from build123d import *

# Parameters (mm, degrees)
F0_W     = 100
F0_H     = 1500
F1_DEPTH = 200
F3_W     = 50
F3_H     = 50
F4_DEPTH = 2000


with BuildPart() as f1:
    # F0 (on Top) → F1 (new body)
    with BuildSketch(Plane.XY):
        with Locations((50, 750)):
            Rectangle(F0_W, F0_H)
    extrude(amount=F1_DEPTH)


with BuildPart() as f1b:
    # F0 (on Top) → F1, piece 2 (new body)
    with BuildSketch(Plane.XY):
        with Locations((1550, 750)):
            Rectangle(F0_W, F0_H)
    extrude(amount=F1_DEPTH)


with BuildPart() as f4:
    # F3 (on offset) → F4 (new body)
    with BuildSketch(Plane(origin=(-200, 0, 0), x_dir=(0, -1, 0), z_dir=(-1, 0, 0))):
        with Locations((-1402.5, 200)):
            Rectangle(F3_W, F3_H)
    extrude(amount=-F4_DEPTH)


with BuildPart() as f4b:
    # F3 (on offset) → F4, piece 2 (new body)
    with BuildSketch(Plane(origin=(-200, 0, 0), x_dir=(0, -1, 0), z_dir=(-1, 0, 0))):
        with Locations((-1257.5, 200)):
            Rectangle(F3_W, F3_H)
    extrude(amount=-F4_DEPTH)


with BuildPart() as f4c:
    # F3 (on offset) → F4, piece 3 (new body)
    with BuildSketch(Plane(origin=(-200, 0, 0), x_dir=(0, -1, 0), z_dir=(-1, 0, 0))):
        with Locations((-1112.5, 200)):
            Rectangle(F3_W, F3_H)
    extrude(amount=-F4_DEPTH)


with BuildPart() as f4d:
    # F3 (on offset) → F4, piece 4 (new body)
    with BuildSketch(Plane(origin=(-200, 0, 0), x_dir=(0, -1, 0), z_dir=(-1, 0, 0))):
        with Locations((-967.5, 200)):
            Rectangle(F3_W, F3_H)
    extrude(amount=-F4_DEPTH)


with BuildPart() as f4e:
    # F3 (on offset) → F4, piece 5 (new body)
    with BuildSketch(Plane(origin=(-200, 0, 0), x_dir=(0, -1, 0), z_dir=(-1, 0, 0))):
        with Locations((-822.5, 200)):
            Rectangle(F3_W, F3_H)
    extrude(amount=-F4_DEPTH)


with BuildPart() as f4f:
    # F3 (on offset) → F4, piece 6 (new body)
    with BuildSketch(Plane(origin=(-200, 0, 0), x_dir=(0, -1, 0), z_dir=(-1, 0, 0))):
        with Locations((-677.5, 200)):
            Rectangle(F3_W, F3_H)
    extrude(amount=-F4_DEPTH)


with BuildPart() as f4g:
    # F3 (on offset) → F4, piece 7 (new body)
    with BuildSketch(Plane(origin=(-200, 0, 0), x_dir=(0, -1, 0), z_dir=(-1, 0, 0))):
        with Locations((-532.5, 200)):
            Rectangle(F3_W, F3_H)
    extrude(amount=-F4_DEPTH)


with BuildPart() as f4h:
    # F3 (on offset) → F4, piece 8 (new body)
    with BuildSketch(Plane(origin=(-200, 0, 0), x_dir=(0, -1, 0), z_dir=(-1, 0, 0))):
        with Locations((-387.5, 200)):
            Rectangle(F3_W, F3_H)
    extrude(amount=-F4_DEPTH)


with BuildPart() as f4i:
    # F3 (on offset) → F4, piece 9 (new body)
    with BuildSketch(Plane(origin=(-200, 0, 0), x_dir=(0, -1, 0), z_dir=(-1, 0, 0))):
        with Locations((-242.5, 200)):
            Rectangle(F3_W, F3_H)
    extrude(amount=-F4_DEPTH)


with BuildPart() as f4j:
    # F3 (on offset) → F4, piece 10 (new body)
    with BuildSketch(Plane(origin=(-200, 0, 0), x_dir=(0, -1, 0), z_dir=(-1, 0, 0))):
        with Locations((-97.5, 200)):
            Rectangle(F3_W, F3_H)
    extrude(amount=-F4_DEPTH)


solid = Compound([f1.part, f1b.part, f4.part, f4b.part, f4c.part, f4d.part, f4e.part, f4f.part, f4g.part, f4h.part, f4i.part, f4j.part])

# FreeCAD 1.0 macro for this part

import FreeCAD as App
import Part
import Sketcher
from FreeCAD import Vector

doc = App.newDocument("Part")
params = doc.addObject("Spreadsheet::Sheet", "Params")
for row, (alias, value) in enumerate([
    ("sketch1_width", "100 mm"),
    ("sketch1_height", "1500 mm"),
    ("pad1_length", "200 mm"),
    ("sketch2_width", "100 mm"),
    ("sketch2_height", "1500 mm"),
    ("pad2_length", "200 mm"),
    ("sketch3_width", "50 mm"),
    ("pad3_length", "2000 mm"),
    ("sketch4_width", "50 mm"),
    ("pad4_length", "2000 mm"),
    ("sketch5_width", "50 mm"),
    ("pad5_length", "2000 mm"),
    ("sketch6_width", "50 mm"),
    ("pad6_length", "2000 mm"),
    ("sketch7_width", "50 mm"),
    ("pad7_length", "2000 mm"),
    ("sketch8_width", "50 mm"),
    ("pad8_length", "2000 mm"),
    ("sketch9_width", "50 mm"),
    ("pad9_length", "2000 mm"),
    ("sketch10_width", "50 mm"),
    ("pad10_length", "2000 mm"),
    ("sketch11_width", "50 mm"),
    ("pad11_length", "2000 mm"),
    ("sketch12_width", "50 mm"),
    ("pad12_length", "2000 mm"),
], start=1):
    params.set(f"A{row}", alias)
    params.set(f"B{row}", "=" + value)
    params.setAlias(f"B{row}", alias)

body = doc.addObject("PartDesign::Body", "Body")

# Sketch on XY plane
sketch1 = body.newObject("Sketcher::SketchObject", "Sketch")
sketch1.AttachmentSupport = (doc.getObject("XY_Plane"), [""])
sketch1.MapMode = "FlatFace"
sketch1.addGeometry([
    Part.LineSegment(Vector(0, 1500, 0), Vector(0, 0, 0)),
    Part.LineSegment(Vector(0, 0, 0), Vector(100, 0, 0)),
    Part.LineSegment(Vector(100, 0, 0), Vector(100, 1500, 0)),
    Part.LineSegment(Vector(100, 1500, 0), Vector(0, 1500, 0)),
], False)
sketch1.addConstraint([
    Sketcher.Constraint("Coincident", 0, 2, 1, 1),
    Sketcher.Constraint("Coincident", 1, 2, 2, 1),
    Sketcher.Constraint("Coincident", 2, 2, 3, 1),
    Sketcher.Constraint("Coincident", 3, 2, 0, 1),
    Sketcher.Constraint("Vertical", 0),
    Sketcher.Constraint("Horizontal", 1),
    Sketcher.Constraint("Vertical", 2),
    Sketcher.Constraint("Horizontal", 3),
    Sketcher.Constraint("Coincident", 0, 2, -1, 1),
    Sketcher.Constraint("DistanceX", 1, 1, 1, 2, 100.0),
    Sketcher.Constraint("DistanceY", 0, 2, 0, 1, 1500.0),
])
sketch1.setExpression("Constraints[9]", "Params.sketch1_width")
sketch1.setExpression("Constraints[10]", "Params.sketch1_height")
pad1 = body.newObject("PartDesign::Pad", "Pad")
pad1.Profile = sketch1
pad1.setExpression("Length", "Params.pad1_length")
body2 = doc.addObject("PartDesign::Body", "Body001")

# Sketch on XY plane
sketch2 = body2.newObject("Sketcher::SketchObject", "Sketch001")
sketch2.AttachmentSupport = (doc.getObject("XY_Plane001"), [""])
sketch2.MapMode = "FlatFace"
sketch2.addGeometry([
    Part.LineSegment(Vector(1500, 1500, 0), Vector(1500, 0, 0)),
    Part.LineSegment(Vector(1500, 0, 0), Vector(1600, 0, 0)),
    Part.LineSegment(Vector(1600, 0, 0), Vector(1600, 1500, 0)),
    Part.LineSegment(Vector(1600, 1500, 0), Vector(1500, 1500, 0)),
], False)
sketch2.addConstraint([
    Sketcher.Constraint("Coincident", 0, 2, 1, 1),
    Sketcher.Constraint("Coincident", 1, 2, 2, 1),
    Sketcher.Constraint("Coincident", 2, 2, 3, 1),
    Sketcher.Constraint("Coincident", 3, 2, 0, 1),
    Sketcher.Constraint("Vertical", 0),
    Sketcher.Constraint("Horizontal", 1),
    Sketcher.Constraint("Vertical", 2),
    Sketcher.Constraint("Horizontal", 3),
    Sketcher.Constraint("PointOnObject", 0, 2, -1),
    Sketcher.Constraint("DistanceX", 1, 1, 1, 2, 100.0),
    Sketcher.Constraint("DistanceY", 0, 2, 0, 1, 1500.0),
    Sketcher.Constraint("DistanceX", -1, 1, 0, 2, 1500.0),
])
sketch2.setExpression("Constraints[9]", "Params.sketch2_width")
sketch2.setExpression("Constraints[10]", "Params.sketch2_height")
pad2 = body2.newObject("PartDesign::Pad", "Pad001")
pad2.Profile = sketch2
pad2.setExpression("Length", "Params.pad2_length")
body3 = doc.addObject("PartDesign::Body", "Body002")

# Sketch on YZ plane
sketch3 = body3.newObject("Sketcher::SketchObject", "Sketch002")
sketch3.AttachmentSupport = (doc.getObject("YZ_Plane002"), [""])
sketch3.MapMode = "FlatFace"
sketch3.AttachmentOffset = App.Placement(Vector(0, 0, -200), App.Rotation())
sketch3.addGeometry([
    Part.LineSegment(Vector(1427.5, 225, 0), Vector(1427.5, 175, 0)),
    Part.LineSegment(Vector(1427.5, 175, 0), Vector(1377.5, 175, 0)),
    Part.LineSegment(Vector(1377.5, 175, 0), Vector(1377.5, 225, 0)),
    Part.LineSegment(Vector(1377.5, 225, 0), Vector(1427.5, 225, 0)),
], False)
sketch3.addConstraint([
    Sketcher.Constraint("Coincident", 0, 2, 1, 1),
    Sketcher.Constraint("Coincident", 1, 2, 2, 1),
    Sketcher.Constraint("Coincident", 2, 2, 3, 1),
    Sketcher.Constraint("Coincident", 3, 2, 0, 1),
    Sketcher.Constraint("Vertical", 0),
    Sketcher.Constraint("Horizontal", 1),
    Sketcher.Constraint("Vertical", 2),
    Sketcher.Constraint("Horizontal", 3),
    Sketcher.Constraint("Equal", 3, 0),
    Sketcher.Constraint("DistanceX", 1, 2, 1, 1, 50.0),
    Sketcher.Constraint("DistanceY", -1, 1, 0, 2, 175.0),
    Sketcher.Constraint("DistanceX", -1, 1, 0, 2, 1427.5),
])
sketch3.setExpression("Constraints[9]", "Params.sketch3_width")
pad3 = body3.newObject("PartDesign::Pad", "Pad002")
pad3.Profile = sketch3
pad3.setExpression("Length", "Params.pad3_length")
body4 = doc.addObject("PartDesign::Body", "Body003")

# Sketch on YZ plane
sketch4 = body4.newObject("Sketcher::SketchObject", "Sketch003")
sketch4.AttachmentSupport = (doc.getObject("YZ_Plane003"), [""])
sketch4.MapMode = "FlatFace"
sketch4.AttachmentOffset = App.Placement(Vector(0, 0, -200), App.Rotation())
sketch4.addGeometry([
    Part.LineSegment(Vector(1282.5, 225, 0), Vector(1282.5, 175, 0)),
    Part.LineSegment(Vector(1282.5, 175, 0), Vector(1232.5, 175, 0)),
    Part.LineSegment(Vector(1232.5, 175, 0), Vector(1232.5, 225, 0)),
    Part.LineSegment(Vector(1232.5, 225, 0), Vector(1282.5, 225, 0)),
], False)
sketch4.addConstraint([
    Sketcher.Constraint("Coincident", 0, 2, 1, 1),
    Sketcher.Constraint("Coincident", 1, 2, 2, 1),
    Sketcher.Constraint("Coincident", 2, 2, 3, 1),
    Sketcher.Constraint("Coincident", 3, 2, 0, 1),
    Sketcher.Constraint("Vertical", 0),
    Sketcher.Constraint("Horizontal", 1),
    Sketcher.Constraint("Vertical", 2),
    Sketcher.Constraint("Horizontal", 3),
    Sketcher.Constraint("Equal", 3, 0),
    Sketcher.Constraint("DistanceX", 1, 2, 1, 1, 50.0),
    Sketcher.Constraint("DistanceY", -1, 1, 0, 2, 175.0),
    Sketcher.Constraint("DistanceX", -1, 1, 0, 2, 1282.5),
])
sketch4.setExpression("Constraints[9]", "Params.sketch4_width")
pad4 = body4.newObject("PartDesign::Pad", "Pad003")
pad4.Profile = sketch4
pad4.setExpression("Length", "Params.pad4_length")
body5 = doc.addObject("PartDesign::Body", "Body004")

# Sketch on YZ plane
sketch5 = body5.newObject("Sketcher::SketchObject", "Sketch004")
sketch5.AttachmentSupport = (doc.getObject("YZ_Plane004"), [""])
sketch5.MapMode = "FlatFace"
sketch5.AttachmentOffset = App.Placement(Vector(0, 0, -200), App.Rotation())
sketch5.addGeometry([
    Part.LineSegment(Vector(1137.5, 225, 0), Vector(1137.5, 175, 0)),
    Part.LineSegment(Vector(1137.5, 175, 0), Vector(1087.5, 175, 0)),
    Part.LineSegment(Vector(1087.5, 175, 0), Vector(1087.5, 225, 0)),
    Part.LineSegment(Vector(1087.5, 225, 0), Vector(1137.5, 225, 0)),
], False)
sketch5.addConstraint([
    Sketcher.Constraint("Coincident", 0, 2, 1, 1),
    Sketcher.Constraint("Coincident", 1, 2, 2, 1),
    Sketcher.Constraint("Coincident", 2, 2, 3, 1),
    Sketcher.Constraint("Coincident", 3, 2, 0, 1),
    Sketcher.Constraint("Vertical", 0),
    Sketcher.Constraint("Horizontal", 1),
    Sketcher.Constraint("Vertical", 2),
    Sketcher.Constraint("Horizontal", 3),
    Sketcher.Constraint("Equal", 3, 0),
    Sketcher.Constraint("DistanceX", 1, 2, 1, 1, 50.0),
    Sketcher.Constraint("DistanceY", -1, 1, 0, 2, 175.0),
    Sketcher.Constraint("DistanceX", -1, 1, 0, 2, 1137.5),
])
sketch5.setExpression("Constraints[9]", "Params.sketch5_width")
pad5 = body5.newObject("PartDesign::Pad", "Pad004")
pad5.Profile = sketch5
pad5.setExpression("Length", "Params.pad5_length")
body6 = doc.addObject("PartDesign::Body", "Body005")

# Sketch on YZ plane
sketch6 = body6.newObject("Sketcher::SketchObject", "Sketch005")
sketch6.AttachmentSupport = (doc.getObject("YZ_Plane005"), [""])
sketch6.MapMode = "FlatFace"
sketch6.AttachmentOffset = App.Placement(Vector(0, 0, -200), App.Rotation())
sketch6.addGeometry([
    Part.LineSegment(Vector(992.5, 225, 0), Vector(992.5, 175, 0)),
    Part.LineSegment(Vector(992.5, 175, 0), Vector(942.5, 175, 0)),
    Part.LineSegment(Vector(942.5, 175, 0), Vector(942.5, 225, 0)),
    Part.LineSegment(Vector(942.5, 225, 0), Vector(992.5, 225, 0)),
], False)
sketch6.addConstraint([
    Sketcher.Constraint("Coincident", 0, 2, 1, 1),
    Sketcher.Constraint("Coincident", 1, 2, 2, 1),
    Sketcher.Constraint("Coincident", 2, 2, 3, 1),
    Sketcher.Constraint("Coincident", 3, 2, 0, 1),
    Sketcher.Constraint("Vertical", 0),
    Sketcher.Constraint("Horizontal", 1),
    Sketcher.Constraint("Vertical", 2),
    Sketcher.Constraint("Horizontal", 3),
    Sketcher.Constraint("Equal", 3, 0),
    Sketcher.Constraint("DistanceX", 1, 2, 1, 1, 50.0),
    Sketcher.Constraint("DistanceY", -1, 1, 0, 2, 175.0),
    Sketcher.Constraint("DistanceX", -1, 1, 0, 2, 992.5),
])
sketch6.setExpression("Constraints[9]", "Params.sketch6_width")
pad6 = body6.newObject("PartDesign::Pad", "Pad005")
pad6.Profile = sketch6
pad6.setExpression("Length", "Params.pad6_length")
body7 = doc.addObject("PartDesign::Body", "Body006")

# Sketch on YZ plane
sketch7 = body7.newObject("Sketcher::SketchObject", "Sketch006")
sketch7.AttachmentSupport = (doc.getObject("YZ_Plane006"), [""])
sketch7.MapMode = "FlatFace"
sketch7.AttachmentOffset = App.Placement(Vector(0, 0, -200), App.Rotation())
sketch7.addGeometry([
    Part.LineSegment(Vector(847.5, 225, 0), Vector(847.5, 175, 0)),
    Part.LineSegment(Vector(847.5, 175, 0), Vector(797.5, 175, 0)),
    Part.LineSegment(Vector(797.5, 175, 0), Vector(797.5, 225, 0)),
    Part.LineSegment(Vector(797.5, 225, 0), Vector(847.5, 225, 0)),
], False)
sketch7.addConstraint([
    Sketcher.Constraint("Coincident", 0, 2, 1, 1),
    Sketcher.Constraint("Coincident", 1, 2, 2, 1),
    Sketcher.Constraint("Coincident", 2, 2, 3, 1),
    Sketcher.Constraint("Coincident", 3, 2, 0, 1),
    Sketcher.Constraint("Vertical", 0),
    Sketcher.Constraint("Horizontal", 1),
    Sketcher.Constraint("Vertical", 2),
    Sketcher.Constraint("Horizontal", 3),
    Sketcher.Constraint("Equal", 3, 0),
    Sketcher.Constraint("DistanceX", 1, 2, 1, 1, 50.0),
    Sketcher.Constraint("DistanceY", -1, 1, 0, 2, 175.0),
    Sketcher.Constraint("DistanceX", -1, 1, 0, 2, 847.5),
])
sketch7.setExpression("Constraints[9]", "Params.sketch7_width")
pad7 = body7.newObject("PartDesign::Pad", "Pad006")
pad7.Profile = sketch7
pad7.setExpression("Length", "Params.pad7_length")
body8 = doc.addObject("PartDesign::Body", "Body007")

# Sketch on YZ plane
sketch8 = body8.newObject("Sketcher::SketchObject", "Sketch007")
sketch8.AttachmentSupport = (doc.getObject("YZ_Plane007"), [""])
sketch8.MapMode = "FlatFace"
sketch8.AttachmentOffset = App.Placement(Vector(0, 0, -200), App.Rotation())
sketch8.addGeometry([
    Part.LineSegment(Vector(702.5, 225, 0), Vector(702.5, 175, 0)),
    Part.LineSegment(Vector(702.5, 175, 0), Vector(652.5, 175, 0)),
    Part.LineSegment(Vector(652.5, 175, 0), Vector(652.5, 225, 0)),
    Part.LineSegment(Vector(652.5, 225, 0), Vector(702.5, 225, 0)),
], False)
sketch8.addConstraint([
    Sketcher.Constraint("Coincident", 0, 2, 1, 1),
    Sketcher.Constraint("Coincident", 1, 2, 2, 1),
    Sketcher.Constraint("Coincident", 2, 2, 3, 1),
    Sketcher.Constraint("Coincident", 3, 2, 0, 1),
    Sketcher.Constraint("Vertical", 0),
    Sketcher.Constraint("Horizontal", 1),
    Sketcher.Constraint("Vertical", 2),
    Sketcher.Constraint("Horizontal", 3),
    Sketcher.Constraint("Equal", 3, 0),
    Sketcher.Constraint("DistanceX", 1, 2, 1, 1, 50.0),
    Sketcher.Constraint("DistanceY", -1, 1, 0, 2, 175.0),
    Sketcher.Constraint("DistanceX", -1, 1, 0, 2, 702.5),
])
sketch8.setExpression("Constraints[9]", "Params.sketch8_width")
pad8 = body8.newObject("PartDesign::Pad", "Pad007")
pad8.Profile = sketch8
pad8.setExpression("Length", "Params.pad8_length")
body9 = doc.addObject("PartDesign::Body", "Body008")

# Sketch on YZ plane
sketch9 = body9.newObject("Sketcher::SketchObject", "Sketch008")
sketch9.AttachmentSupport = (doc.getObject("YZ_Plane008"), [""])
sketch9.MapMode = "FlatFace"
sketch9.AttachmentOffset = App.Placement(Vector(0, 0, -200), App.Rotation())
sketch9.addGeometry([
    Part.LineSegment(Vector(557.5, 225, 0), Vector(557.5, 175, 0)),
    Part.LineSegment(Vector(557.5, 175, 0), Vector(507.5, 175, 0)),
    Part.LineSegment(Vector(507.5, 175, 0), Vector(507.5, 225, 0)),
    Part.LineSegment(Vector(507.5, 225, 0), Vector(557.5, 225, 0)),
], False)
sketch9.addConstraint([
    Sketcher.Constraint("Coincident", 0, 2, 1, 1),
    Sketcher.Constraint("Coincident", 1, 2, 2, 1),
    Sketcher.Constraint("Coincident", 2, 2, 3, 1),
    Sketcher.Constraint("Coincident", 3, 2, 0, 1),
    Sketcher.Constraint("Vertical", 0),
    Sketcher.Constraint("Horizontal", 1),
    Sketcher.Constraint("Vertical", 2),
    Sketcher.Constraint("Horizontal", 3),
    Sketcher.Constraint("Equal", 3, 0),
    Sketcher.Constraint("DistanceX", 1, 2, 1, 1, 50.0),
    Sketcher.Constraint("DistanceY", -1, 1, 0, 2, 175.0),
    Sketcher.Constraint("DistanceX", -1, 1, 0, 2, 557.5),
])
sketch9.setExpression("Constraints[9]", "Params.sketch9_width")
pad9 = body9.newObject("PartDesign::Pad", "Pad008")
pad9.Profile = sketch9
pad9.setExpression("Length", "Params.pad9_length")
body10 = doc.addObject("PartDesign::Body", "Body009")

# Sketch on YZ plane
sketch10 = body10.newObject("Sketcher::SketchObject", "Sketch009")
sketch10.AttachmentSupport = (doc.getObject("YZ_Plane009"), [""])
sketch10.MapMode = "FlatFace"
sketch10.AttachmentOffset = App.Placement(Vector(0, 0, -200), App.Rotation())
sketch10.addGeometry([
    Part.LineSegment(Vector(412.5, 225, 0), Vector(412.5, 175, 0)),
    Part.LineSegment(Vector(412.5, 175, 0), Vector(362.5, 175, 0)),
    Part.LineSegment(Vector(362.5, 175, 0), Vector(362.5, 225, 0)),
    Part.LineSegment(Vector(362.5, 225, 0), Vector(412.5, 225, 0)),
], False)
sketch10.addConstraint([
    Sketcher.Constraint("Coincident", 0, 2, 1, 1),
    Sketcher.Constraint("Coincident", 1, 2, 2, 1),
    Sketcher.Constraint("Coincident", 2, 2, 3, 1),
    Sketcher.Constraint("Coincident", 3, 2, 0, 1),
    Sketcher.Constraint("Vertical", 0),
    Sketcher.Constraint("Horizontal", 1),
    Sketcher.Constraint("Vertical", 2),
    Sketcher.Constraint("Horizontal", 3),
    Sketcher.Constraint("Equal", 3, 0),
    Sketcher.Constraint("DistanceX", 1, 2, 1, 1, 50.0),
    Sketcher.Constraint("DistanceY", -1, 1, 0, 2, 175.0),
    Sketcher.Constraint("DistanceX", -1, 1, 0, 2, 412.5),
])
sketch10.setExpression("Constraints[9]", "Params.sketch10_width")
pad10 = body10.newObject("PartDesign::Pad", "Pad009")
pad10.Profile = sketch10
pad10.setExpression("Length", "Params.pad10_length")
body11 = doc.addObject("PartDesign::Body", "Body010")

# Sketch on YZ plane
sketch11 = body11.newObject("Sketcher::SketchObject", "Sketch010")
sketch11.AttachmentSupport = (doc.getObject("YZ_Plane010"), [""])
sketch11.MapMode = "FlatFace"
sketch11.AttachmentOffset = App.Placement(Vector(0, 0, -200), App.Rotation())
sketch11.addGeometry([
    Part.LineSegment(Vector(267.5, 225, 0), Vector(267.5, 175, 0)),
    Part.LineSegment(Vector(267.5, 175, 0), Vector(217.5, 175, 0)),
    Part.LineSegment(Vector(217.5, 175, 0), Vector(217.5, 225, 0)),
    Part.LineSegment(Vector(217.5, 225, 0), Vector(267.5, 225, 0)),
], False)
sketch11.addConstraint([
    Sketcher.Constraint("Coincident", 0, 2, 1, 1),
    Sketcher.Constraint("Coincident", 1, 2, 2, 1),
    Sketcher.Constraint("Coincident", 2, 2, 3, 1),
    Sketcher.Constraint("Coincident", 3, 2, 0, 1),
    Sketcher.Constraint("Vertical", 0),
    Sketcher.Constraint("Horizontal", 1),
    Sketcher.Constraint("Vertical", 2),
    Sketcher.Constraint("Horizontal", 3),
    Sketcher.Constraint("Equal", 3, 0),
    Sketcher.Constraint("DistanceX", 1, 2, 1, 1, 50.0),
    Sketcher.Constraint("DistanceY", -1, 1, 0, 2, 175.0),
    Sketcher.Constraint("DistanceX", -1, 1, 0, 2, 267.5),
])
sketch11.setExpression("Constraints[9]", "Params.sketch11_width")
pad11 = body11.newObject("PartDesign::Pad", "Pad010")
pad11.Profile = sketch11
pad11.setExpression("Length", "Params.pad11_length")
body12 = doc.addObject("PartDesign::Body", "Body011")

# Sketch on YZ plane
sketch12 = body12.newObject("Sketcher::SketchObject", "Sketch011")
sketch12.AttachmentSupport = (doc.getObject("YZ_Plane011"), [""])
sketch12.MapMode = "FlatFace"
sketch12.AttachmentOffset = App.Placement(Vector(0, 0, -200), App.Rotation())
sketch12.addGeometry([
    Part.LineSegment(Vector(122.5, 225, 0), Vector(122.5, 175, 0)),
    Part.LineSegment(Vector(122.5, 175, 0), Vector(72.5, 175, 0)),
    Part.LineSegment(Vector(72.5, 175, 0), Vector(72.5, 225, 0)),
    Part.LineSegment(Vector(72.5, 225, 0), Vector(122.5, 225, 0)),
], False)
sketch12.addConstraint([
    Sketcher.Constraint("Coincident", 0, 2, 1, 1),
    Sketcher.Constraint("Coincident", 1, 2, 2, 1),
    Sketcher.Constraint("Coincident", 2, 2, 3, 1),
    Sketcher.Constraint("Coincident", 3, 2, 0, 1),
    Sketcher.Constraint("Vertical", 0),
    Sketcher.Constraint("Horizontal", 1),
    Sketcher.Constraint("Vertical", 2),
    Sketcher.Constraint("Horizontal", 3),
    Sketcher.Constraint("Equal", 3, 0),
    Sketcher.Constraint("DistanceX", 1, 2, 1, 1, 50.0),
    Sketcher.Constraint("DistanceY", -1, 1, 0, 2, 175.0),
    Sketcher.Constraint("DistanceX", -1, 1, 0, 2, 122.5),
])
sketch12.setExpression("Constraints[9]", "Params.sketch12_width")
pad12 = body12.newObject("PartDesign::Pad", "Pad011")
pad12.Profile = sketch12
pad12.setExpression("Length", "Params.pad12_length")

doc.recompute()
